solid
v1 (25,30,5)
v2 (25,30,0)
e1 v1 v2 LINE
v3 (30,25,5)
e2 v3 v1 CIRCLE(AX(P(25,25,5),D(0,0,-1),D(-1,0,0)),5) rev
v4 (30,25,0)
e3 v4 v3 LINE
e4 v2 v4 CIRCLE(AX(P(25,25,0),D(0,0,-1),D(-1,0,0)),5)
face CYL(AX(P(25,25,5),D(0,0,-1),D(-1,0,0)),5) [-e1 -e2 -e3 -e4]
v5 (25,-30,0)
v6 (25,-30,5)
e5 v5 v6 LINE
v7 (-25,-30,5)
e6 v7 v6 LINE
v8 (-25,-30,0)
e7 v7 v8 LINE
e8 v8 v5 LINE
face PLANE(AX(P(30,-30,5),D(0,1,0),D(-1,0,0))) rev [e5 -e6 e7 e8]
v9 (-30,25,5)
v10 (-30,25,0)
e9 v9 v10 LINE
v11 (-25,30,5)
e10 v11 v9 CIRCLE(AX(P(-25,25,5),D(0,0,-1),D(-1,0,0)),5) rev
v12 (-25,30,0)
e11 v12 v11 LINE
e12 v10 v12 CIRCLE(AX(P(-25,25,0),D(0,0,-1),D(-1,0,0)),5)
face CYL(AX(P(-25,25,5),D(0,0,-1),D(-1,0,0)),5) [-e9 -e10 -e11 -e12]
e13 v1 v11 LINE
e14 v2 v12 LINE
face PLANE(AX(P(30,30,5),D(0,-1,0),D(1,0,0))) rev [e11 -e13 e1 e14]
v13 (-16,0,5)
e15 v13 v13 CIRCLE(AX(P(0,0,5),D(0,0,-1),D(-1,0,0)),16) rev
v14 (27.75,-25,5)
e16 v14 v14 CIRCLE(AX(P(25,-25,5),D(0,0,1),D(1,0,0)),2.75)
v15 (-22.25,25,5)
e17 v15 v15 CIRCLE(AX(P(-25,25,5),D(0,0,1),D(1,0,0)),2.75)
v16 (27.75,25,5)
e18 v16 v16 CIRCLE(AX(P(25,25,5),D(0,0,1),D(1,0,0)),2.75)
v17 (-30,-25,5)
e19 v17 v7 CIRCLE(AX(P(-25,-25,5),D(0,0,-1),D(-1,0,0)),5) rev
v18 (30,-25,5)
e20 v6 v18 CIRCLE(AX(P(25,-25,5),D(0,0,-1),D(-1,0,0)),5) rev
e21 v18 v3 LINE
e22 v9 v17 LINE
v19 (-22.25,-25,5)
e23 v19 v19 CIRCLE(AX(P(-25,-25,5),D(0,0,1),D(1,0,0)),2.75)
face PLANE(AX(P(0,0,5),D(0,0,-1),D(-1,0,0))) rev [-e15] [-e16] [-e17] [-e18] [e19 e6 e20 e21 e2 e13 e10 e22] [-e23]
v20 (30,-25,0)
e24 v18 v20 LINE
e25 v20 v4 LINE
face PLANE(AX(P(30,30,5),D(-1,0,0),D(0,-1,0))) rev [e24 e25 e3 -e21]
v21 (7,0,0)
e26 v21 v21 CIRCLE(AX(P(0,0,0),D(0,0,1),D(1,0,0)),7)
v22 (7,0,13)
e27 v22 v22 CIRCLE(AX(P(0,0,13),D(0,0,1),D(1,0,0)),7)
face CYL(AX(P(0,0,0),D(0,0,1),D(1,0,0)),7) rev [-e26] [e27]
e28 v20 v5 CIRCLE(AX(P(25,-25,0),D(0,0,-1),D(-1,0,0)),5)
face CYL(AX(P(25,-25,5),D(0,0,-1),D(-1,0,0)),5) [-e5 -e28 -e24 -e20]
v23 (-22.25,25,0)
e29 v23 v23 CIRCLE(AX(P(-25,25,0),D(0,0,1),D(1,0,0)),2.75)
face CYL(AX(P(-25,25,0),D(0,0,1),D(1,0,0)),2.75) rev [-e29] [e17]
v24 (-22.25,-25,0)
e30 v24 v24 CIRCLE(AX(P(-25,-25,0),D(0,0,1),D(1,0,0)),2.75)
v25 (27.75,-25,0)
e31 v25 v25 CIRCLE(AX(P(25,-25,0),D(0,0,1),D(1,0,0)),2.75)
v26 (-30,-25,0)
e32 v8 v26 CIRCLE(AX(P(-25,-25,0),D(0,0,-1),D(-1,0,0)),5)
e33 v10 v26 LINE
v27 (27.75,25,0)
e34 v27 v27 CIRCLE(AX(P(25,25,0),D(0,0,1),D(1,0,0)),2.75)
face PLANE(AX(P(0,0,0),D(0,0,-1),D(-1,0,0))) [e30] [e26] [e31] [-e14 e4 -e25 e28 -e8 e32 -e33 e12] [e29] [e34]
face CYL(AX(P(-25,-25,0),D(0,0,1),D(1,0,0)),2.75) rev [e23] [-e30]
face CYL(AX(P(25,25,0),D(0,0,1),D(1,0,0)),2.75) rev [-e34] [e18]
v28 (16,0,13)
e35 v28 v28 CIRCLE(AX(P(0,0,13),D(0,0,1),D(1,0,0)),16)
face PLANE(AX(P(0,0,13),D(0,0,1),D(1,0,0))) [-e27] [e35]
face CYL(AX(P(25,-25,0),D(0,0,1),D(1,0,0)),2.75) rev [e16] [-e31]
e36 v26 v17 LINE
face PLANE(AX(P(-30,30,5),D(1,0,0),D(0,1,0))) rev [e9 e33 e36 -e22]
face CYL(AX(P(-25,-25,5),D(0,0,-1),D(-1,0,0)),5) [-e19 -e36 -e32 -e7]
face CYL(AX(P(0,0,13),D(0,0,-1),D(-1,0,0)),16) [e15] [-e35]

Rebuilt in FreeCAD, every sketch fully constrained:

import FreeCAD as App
import Part
import Sketcher

V = App.Vector


def edges_at(feature, points):
    """Names of the edges that pass closest to the given points."""
    edges = feature.Shape.Edges
    near = lambda p: min(range(len(edges)), key=lambda i: edges[i].distToShape(Part.Vertex(*p))[0])
    return sorted({f"Edge{near(p) + 1}" for p in points})


def add_polygon(sketch, points):
    """Adds a closed chain of lines whose ends are joined by coincident constraints."""
    first, n = sketch.GeometryCount, len(points)
    for a, b in zip(points, points[1:] + points[:1]):
        sketch.addGeometry(Part.LineSegment(App.Vector(*a, 0), App.Vector(*b, 0)), False)
    for i in range(n):
        sketch.addConstraint(Sketcher.Constraint("Coincident", first + i, 2, first + (i + 1) % n, 1))

doc = App.newDocument("Part")
params = doc.addObject("Spreadsheet::Sheet", "Params")
for row, (alias, value) in enumerate([
    ("sketch1_width", "60 mm"),
    ("pad1_length", "5 mm"),
    ("sketch2_diameter", "5.5 mm"),
    ("pocket1_length", "5 mm"),
    ("fillet_radius", "5 mm"),
    ("sketch3_diameter", "32 mm"),
    ("pad2_length", "8 mm"),
    ("sketch4_diameter", "14 mm"),
], start=1):
    params.set(f"A{row}", alias)
    params.set(f"B{row}", "=" + value)
    params.setAlias(f"B{row}", alias)

body = doc.addObject("PartDesign::Body", "Body")

sketch1 = body.newObject("Sketcher::SketchObject", "Sketch")
sketch1.AttachmentSupport = (doc.getObject("XY_Plane"), [""])
sketch1.MapMode = "FlatFace"
add_polygon(sketch1, [(-30, 30), (-30, -30), (30, -30), (30, 30)])
sketch1.addConstraint([
    Sketcher.Constraint("Vertical", 0),
    Sketcher.Constraint("Horizontal", 1),
    Sketcher.Constraint("Vertical", 2),
    Sketcher.Constraint("Horizontal", 3),
    Sketcher.Constraint("Symmetric", 0, 2, 2, 2, -1, 1),
    Sketcher.Constraint("Equal", 3, 0),
    Sketcher.Constraint("DistanceX", 1, 1, 1, 2, 60.0),
])
sketch1.setExpression("Constraints[10]", "Params.sketch1_width")
pad1 = body.newObject("PartDesign::Pad", "Pad")
pad1.Profile = sketch1
pad1.setExpression("Length", "Params.pad1_length")

sketch2 = body.newObject("Sketcher::SketchObject", "Sketch001")
sketch2.AttachmentSupport = (doc.getObject("XY_Plane"), [""])
sketch2.MapMode = "FlatFace"
sketch2.AttachmentOffset = App.Placement(V(0, 0, 5), App.Rotation())
sketch2.addGeometry([
    Part.Circle(V(-25, 25, 0), V(0, 0, 1), 2.8),
    Part.Circle(V(25, 25, 0), V(0, 0, 1), 2.8),
    Part.Circle(V(25, -25, 0), V(0, 0, 1), 2.8),
    Part.Circle(V(-25, -25, 0), V(0, 0, 1), 2.8),
], False)
sketch2.addConstraint([
    Sketcher.Constraint("Equal", 0, 1),
    Sketcher.Constraint("Equal", 1, 2),
    Sketcher.Constraint("Equal", 2, 3),
    Sketcher.Constraint("Symmetric", 0, 3, 2, 3, -1, 1),
    Sketcher.Constraint("Symmetric", 1, 3, 3, 3, -1, 1),
    Sketcher.Constraint("Symmetric", 0, 3, 1, 3, -2),
    Sketcher.Constraint("Diameter", 0, 5.5),
    Sketcher.Constraint("DistanceX", 0, 3, -1, 1, 25.0),
    Sketcher.Constraint("DistanceY", -1, 1, 0, 3, 25.0),
])
sketch2.setExpression("Constraints[6]", "Params.sketch2_diameter")
pocket1 = body.newObject("PartDesign::Pocket", "Pocket")
pocket1.Profile = sketch2
pocket1.setExpression("Length", "Params.pocket1_length")
doc.recompute()

fillet = body.newObject("PartDesign::Fillet", "Fillet")
fillet.Base = (pocket1, edges_at(pocket1, [
    (-30, 30, 2.5),
    (30, 30, 2.5),
    (30, -30, 2.5),
    (-30, -30, 2.5),
]))
fillet.setExpression("Radius", "Params.fillet_radius")

sketch3 = body.newObject("Sketcher::SketchObject", "Sketch002")
sketch3.AttachmentSupport = (doc.getObject("XY_Plane"), [""])
sketch3.MapMode = "FlatFace"
sketch3.AttachmentOffset = App.Placement(V(0, 0, 5), App.Rotation())
sketch3.addGeometry(Part.Circle(V(0, 0, 0), V(0, 0, 1), 16), False)
sketch3.addConstraint([
    Sketcher.Constraint("Coincident", 0, 3, -1, 1),
    Sketcher.Constraint("Diameter", 0, 32.0),
])
sketch3.setExpression("Constraints[1]", "Params.sketch3_diameter")
pad2 = body.newObject("PartDesign::Pad", "Pad001")
pad2.Profile = sketch3
pad2.setExpression("Length", "Params.pad2_length")

sketch4 = body.newObject("Sketcher::SketchObject", "Sketch003")
sketch4.AttachmentSupport = (doc.getObject("XY_Plane"), [""])
sketch4.MapMode = "FlatFace"
sketch4.AttachmentOffset = App.Placement(V(0, 0, 13), App.Rotation())
sketch4.addGeometry(Part.Circle(V(0, 0, 0), V(0, 0, 1), 7), False)
sketch4.addConstraint([
    Sketcher.Constraint("Coincident", 0, 3, -1, 1),
    Sketcher.Constraint("Diameter", 0, 14.0),
])
sketch4.setExpression("Constraints[1]", "Params.sketch4_diameter")
pocket2 = body.newObject("PartDesign::Pocket", "Pocket001")
pocket2.Profile = sketch4
pocket2.Type = "ThroughAll"

doc.recompute()
